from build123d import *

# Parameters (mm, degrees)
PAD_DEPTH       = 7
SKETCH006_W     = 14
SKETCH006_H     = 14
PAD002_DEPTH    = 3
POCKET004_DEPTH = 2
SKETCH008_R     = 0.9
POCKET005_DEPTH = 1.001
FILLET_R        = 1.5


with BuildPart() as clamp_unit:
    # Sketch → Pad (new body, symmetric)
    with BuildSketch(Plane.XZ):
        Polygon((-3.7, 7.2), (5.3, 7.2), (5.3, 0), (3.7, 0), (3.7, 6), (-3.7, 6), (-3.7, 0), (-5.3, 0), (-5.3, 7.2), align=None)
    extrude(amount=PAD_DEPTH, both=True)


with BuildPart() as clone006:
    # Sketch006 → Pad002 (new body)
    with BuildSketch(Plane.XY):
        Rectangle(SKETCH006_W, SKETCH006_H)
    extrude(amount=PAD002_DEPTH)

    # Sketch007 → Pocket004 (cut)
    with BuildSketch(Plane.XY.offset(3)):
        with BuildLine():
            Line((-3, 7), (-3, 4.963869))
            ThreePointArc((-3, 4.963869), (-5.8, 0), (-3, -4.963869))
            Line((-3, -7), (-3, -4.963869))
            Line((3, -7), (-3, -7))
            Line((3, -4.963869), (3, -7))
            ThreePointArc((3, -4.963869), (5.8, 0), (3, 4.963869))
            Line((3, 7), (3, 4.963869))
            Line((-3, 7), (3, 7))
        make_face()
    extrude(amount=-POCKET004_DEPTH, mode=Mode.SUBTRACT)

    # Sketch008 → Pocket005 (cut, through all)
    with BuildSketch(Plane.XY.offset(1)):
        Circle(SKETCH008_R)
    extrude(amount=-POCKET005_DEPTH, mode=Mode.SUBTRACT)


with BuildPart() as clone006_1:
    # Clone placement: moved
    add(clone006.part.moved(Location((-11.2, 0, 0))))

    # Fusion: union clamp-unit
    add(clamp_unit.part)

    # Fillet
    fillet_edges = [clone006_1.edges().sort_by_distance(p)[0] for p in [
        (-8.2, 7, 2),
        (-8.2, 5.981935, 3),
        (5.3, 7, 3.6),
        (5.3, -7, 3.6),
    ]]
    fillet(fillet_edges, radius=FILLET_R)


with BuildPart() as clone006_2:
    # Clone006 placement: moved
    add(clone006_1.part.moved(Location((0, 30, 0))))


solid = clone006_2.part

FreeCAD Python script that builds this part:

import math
import FreeCAD as App
import Part
import Sketcher
from FreeCAD import Vector
Q = App.Units.Quantity


def edges_at(feature, points):
    """Names of the edges that pass closest to the given points."""
    edges = feature.Shape.Edges
    near = lambda p: min(range(len(edges)), key=lambda i: edges[i].distToShape(Part.Vertex(*p))[0])
    return sorted({f"Edge{near(p) + 1}" for p in points})


def add_polygon(sketch, points):
    """Adds a closed chain of lines whose ends are joined by coincident constraints."""
    first, n = sketch.GeometryCount, len(points)
    for a, b in zip(points, points[1:] + points[:1]):
        sketch.addGeometry(Part.LineSegment(App.Vector(*a, 0), App.Vector(*b, 0)), False)
    for i in range(n):
        sketch.addConstraint(Sketcher.Constraint("Coincident", first + i, 2, first + (i + 1) % n, 1))

doc = App.newDocument("Part")
body = doc.addObject("PartDesign::Body", "Body")

# Sketch on XZ plane
sketch1 = body.newObject("Sketcher::SketchObject", "Sketch")
sketch1.AttachmentSupport = (doc.getObject("XZ_Plane"), [""])
sketch1.MapMode = "FlatFace"
add_polygon(sketch1, [(5.3, 7.2), (-5.3, 7.2), (-5.3, 0), (-3.7, 0), (-3.7, 6), (3.7, 6), (3.7, 0), (5.3, 0)])  # lines 0-7
sketch1.addConstraint([
    Sketcher.Constraint("Horizontal", 0),
    Sketcher.Constraint("Vertical", 1),
    Sketcher.Constraint("Horizontal", 2),
    Sketcher.Constraint("Vertical", 3),
    Sketcher.Constraint("Horizontal", 4),
    Sketcher.Constraint("Vertical", 5),
    Sketcher.Constraint("Horizontal", 6),
    Sketcher.Constraint("Vertical", 7),
    Sketcher.Constraint("Symmetric", 2, 2, 5, 2, -1, 1),
    Sketcher.Constraint("Symmetric", 1, 2, 6, 2, -2),
    Sketcher.Constraint("DistanceY", 3, 1, 3, 2, Q("6 mm")),
    Sketcher.Constraint("DistanceX", 0, 2, 0, 1, Q("10.6 mm")),
    Sketcher.Constraint("DistanceX", 2, 1, 2, 2, Q("1.6 mm")),
    Sketcher.Constraint("DistanceY", 1, 2, 1, 1, Q("7.2 mm")),
])
pad1 = body.newObject("PartDesign::Pad", "Pad")
pad1.Profile = sketch1
pad1.Length = 14
pad1.Midplane = True
body2 = doc.addObject("PartDesign::Body", "Body001")

# Sketch on XY plane
sketch2 = body2.newObject("Sketcher::SketchObject", "Sketch001")
sketch2.AttachmentSupport = (doc.getObject("XY_Plane001"), [""])
sketch2.MapMode = "FlatFace"
add_polygon(sketch2, [(-7, 7), (-7, -7), (7, -7), (7, 7)])  # lines 0-3
sketch2.addConstraint([
    Sketcher.Constraint("Vertical", 0),
    Sketcher.Constraint("Horizontal", 1),
    Sketcher.Constraint("Vertical", 2),
    Sketcher.Constraint("Horizontal", 3),
    Sketcher.Constraint("Symmetric", 0, 2, 2, 2, -1, 1),
    Sketcher.Constraint("Equal", 3, 0),
    Sketcher.Constraint("DistanceX", 1, 1, 1, 2, Q("14 mm")),
])
pad2 = body2.newObject("PartDesign::Pad", "Pad001")
pad2.Profile = sketch2
pad2.Length = 3

# Sketch on XY plane
sketch3 = body2.newObject("Sketcher::SketchObject", "Sketch002")
sketch3.AttachmentSupport = (doc.getObject("XY_Plane001"), [""])
sketch3.MapMode = "FlatFace"
sketch3.AttachmentOffset = App.Placement(Vector(0, 0, 3), App.Rotation())
sketch3.addGeometry([
    Part.LineSegment(Vector(-3, 7, 0), Vector(-3, 5, 0)),  # 0
    Part.ArcOfCircle(Part.Circle(Vector(0, 0, 0), Vector(0, 0, 1), 5.8), math.radians(121), math.radians(239)),  # 1
    Part.LineSegment(Vector(-3, -5, 0), Vector(-3, -7, 0)),  # 2
    Part.LineSegment(Vector(-3, -7, 0), Vector(3, -7, 0)),  # 3
    Part.LineSegment(Vector(3, -7, 0), Vector(3, -5, 0)),  # 4
    Part.ArcOfCircle(Part.Circle(Vector(0, 0, 0), Vector(0, 0, 1), 5.8), math.radians(-59), math.radians(59)),  # 5
    Part.LineSegment(Vector(3, 5, 0), Vector(3, 7, 0)),  # 6
    Part.LineSegment(Vector(3, 7, 0), Vector(-3, 7, 0)),  # 7
], False)
sketch3.addConstraint([
    Sketcher.Constraint("Coincident", 0, 2, 1, 1),
    Sketcher.Constraint("Coincident", 1, 2, 2, 1),
    Sketcher.Constraint("Coincident", 2, 2, 3, 1),
    Sketcher.Constraint("Coincident", 3, 2, 4, 1),
    Sketcher.Constraint("Coincident", 4, 2, 5, 1),
    Sketcher.Constraint("Coincident", 5, 2, 6, 1),
    Sketcher.Constraint("Coincident", 6, 2, 7, 1),
    Sketcher.Constraint("Coincident", 7, 2, 0, 1),
    Sketcher.Constraint("Vertical", 0),
    Sketcher.Constraint("Vertical", 2),
    Sketcher.Constraint("Horizontal", 3),
    Sketcher.Constraint("Vertical", 4),
    Sketcher.Constraint("Vertical", 6),
    Sketcher.Constraint("Horizontal", 7),
    Sketcher.Constraint("Coincident", 1, 3, -1, 1),
    Sketcher.Constraint("Coincident", 5, 3, -1, 1),
    Sketcher.Constraint("Equal", 1, 5),
    Sketcher.Constraint("Symmetric", 2, 2, 6, 2, -1, 1),
    Sketcher.Constraint("Horizontal", 1, 2, 4, 2),
    Sketcher.Constraint("Horizontal", 0, 2, 5, 2),
    Sketcher.Constraint("Radius", 1, Q("5.799999 mm")),
    Sketcher.Constraint("DistanceX", 3, 1, 3, 2, Q("6 mm")),
    Sketcher.Constraint("DistanceY", 2, 2, -1, 1, Q("7 mm")),
])
pocket1 = body2.newObject("PartDesign::Pocket", "Pocket")
pocket1.Profile = sketch3
pocket1.Length = 2

# Sketch on XY plane
sketch4 = body2.newObject("Sketcher::SketchObject", "Sketch003")
sketch4.AttachmentSupport = (doc.getObject("XY_Plane001"), [""])
sketch4.MapMode = "FlatFace"
sketch4.AttachmentOffset = App.Placement(Vector(0, 0, 1), App.Rotation())
sketch4.addGeometry(Part.Circle(Vector(0, 0, 0), Vector(0, 0, 1), 0.9), False)
sketch4.addConstraint([
    Sketcher.Constraint("Coincident", 0, 3, -1, 1),
    Sketcher.Constraint("Diameter", 0, Q("1.8 mm")),
])
pocket2 = body2.newObject("PartDesign::Pocket", "Pocket001")
pocket2.Profile = sketch4
pocket2.Type = "ThroughAll"
body3 = doc.addObject("PartDesign::Body", "Body002")
doc.recompute()

body2.Placement = App.Placement(Vector(-11.2, 0, 0), App.Rotation(Vector(0, 0, 1), 0))
boolean = body3.newObject("PartDesign::Boolean", "Boolean")
boolean.Type = "Fuse"
boolean.addObjects([body2])
doc.recompute()

boolean2 = body3.newObject("PartDesign::Boolean", "Boolean001")
boolean2.Type = "Fuse"
boolean2.addObjects([body])
doc.recompute()

fillet = body3.newObject("PartDesign::Fillet", "Fillet")
fillet.Base = (boolean2, edges_at(boolean2, [
    (-8.2, 7, 2),
    (-8.2, 5.982, 3),
    (5.3, 7, 3.6),
    (5.3, -7, 3.6),
]))
fillet.Radius = 1.5
body4 = doc.addObject("PartDesign::Body", "Body003")
doc.recompute()

body3.Placement = App.Placement(Vector(0, 30, 0), App.Rotation(Vector(0, 0, 1), 0))
boolean3 = body4.newObject("PartDesign::Boolean", "Boolean002")
boolean3.Type = "Fuse"
boolean3.addObjects([body3])

doc.recompute()
